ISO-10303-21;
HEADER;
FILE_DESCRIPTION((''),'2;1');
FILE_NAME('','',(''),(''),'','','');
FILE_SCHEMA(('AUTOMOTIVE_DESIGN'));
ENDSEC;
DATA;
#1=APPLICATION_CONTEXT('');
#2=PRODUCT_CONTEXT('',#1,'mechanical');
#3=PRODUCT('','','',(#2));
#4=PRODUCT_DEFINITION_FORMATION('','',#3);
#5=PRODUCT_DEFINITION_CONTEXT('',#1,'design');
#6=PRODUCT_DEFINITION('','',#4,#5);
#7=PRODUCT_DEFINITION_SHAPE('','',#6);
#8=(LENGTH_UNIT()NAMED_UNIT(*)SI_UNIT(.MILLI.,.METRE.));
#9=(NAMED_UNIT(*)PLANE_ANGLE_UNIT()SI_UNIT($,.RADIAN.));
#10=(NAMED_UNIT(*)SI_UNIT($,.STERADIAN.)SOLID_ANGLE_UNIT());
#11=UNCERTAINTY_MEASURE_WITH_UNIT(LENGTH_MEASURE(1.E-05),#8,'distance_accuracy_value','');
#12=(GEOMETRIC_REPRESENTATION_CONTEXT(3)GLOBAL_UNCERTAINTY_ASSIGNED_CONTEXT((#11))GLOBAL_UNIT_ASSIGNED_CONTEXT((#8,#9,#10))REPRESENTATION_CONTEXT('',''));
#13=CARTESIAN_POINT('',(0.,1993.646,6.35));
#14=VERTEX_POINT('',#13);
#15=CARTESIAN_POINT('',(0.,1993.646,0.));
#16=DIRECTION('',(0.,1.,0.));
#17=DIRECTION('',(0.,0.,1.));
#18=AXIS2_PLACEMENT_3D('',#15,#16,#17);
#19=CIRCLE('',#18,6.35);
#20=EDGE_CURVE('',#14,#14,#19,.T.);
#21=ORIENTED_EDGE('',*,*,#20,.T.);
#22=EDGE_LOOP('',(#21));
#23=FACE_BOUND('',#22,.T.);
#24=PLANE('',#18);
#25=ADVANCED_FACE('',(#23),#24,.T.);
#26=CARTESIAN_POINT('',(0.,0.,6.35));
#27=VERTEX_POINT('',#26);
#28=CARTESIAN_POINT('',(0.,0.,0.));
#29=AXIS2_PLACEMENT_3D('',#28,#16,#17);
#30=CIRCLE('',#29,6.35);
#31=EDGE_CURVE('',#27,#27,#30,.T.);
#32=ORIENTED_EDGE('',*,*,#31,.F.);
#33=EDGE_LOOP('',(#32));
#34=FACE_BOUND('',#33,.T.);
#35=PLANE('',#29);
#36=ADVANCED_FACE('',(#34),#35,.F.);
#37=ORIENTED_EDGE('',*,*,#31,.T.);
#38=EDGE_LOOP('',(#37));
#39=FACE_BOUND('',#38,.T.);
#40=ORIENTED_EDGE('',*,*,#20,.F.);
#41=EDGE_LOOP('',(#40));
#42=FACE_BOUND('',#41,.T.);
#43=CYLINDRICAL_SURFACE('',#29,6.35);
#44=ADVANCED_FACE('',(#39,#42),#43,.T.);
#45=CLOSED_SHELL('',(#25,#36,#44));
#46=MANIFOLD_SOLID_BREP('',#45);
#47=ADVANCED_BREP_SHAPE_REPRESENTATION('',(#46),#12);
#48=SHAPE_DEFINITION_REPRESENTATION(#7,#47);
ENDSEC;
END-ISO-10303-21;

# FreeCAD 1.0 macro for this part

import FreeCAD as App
import Part
import Sketcher
from FreeCAD import Vector
Q = App.Units.Quantity

doc = App.newDocument("Part")
body = doc.addObject("PartDesign::Body", "Body")

# Sketch on XZ plane
sketch1 = body.newObject("Sketcher::SketchObject", "Sketch")
sketch1.AttachmentSupport = (doc.getObject("XZ_Plane"), [""])
sketch1.MapMode = "FlatFace"
sketch1.addGeometry(Part.Circle(Vector(0, 0, 0), Vector(0, 0, 1), 6.35), False)
sketch1.addConstraint(Sketcher.Constraint("Coincident", 0, 3, -1, 1))
sketch1.addConstraint(Sketcher.Constraint("Diameter", 0, Q("0.5 in")))

# Sketch on XY plane
sketch2 = body.newObject("Sketcher::SketchObject", "Sketch001")
sketch2.AttachmentSupport = (doc.getObject("XY_Plane"), [""])
sketch2.MapMode = "FlatFace"
sketch2.addGeometry(Part.LineSegment(Vector(0, 0, 0), Vector(0, 1993.646, 0)), False)
sketch2.addConstraint(Sketcher.Constraint("Vertical", 0))
sketch2.addConstraint(Sketcher.Constraint("Coincident", 0, 1, -1, 1))
sketch2.addConstraint(Sketcher.Constraint("DistanceY", 0, 1, 0, 2, Q("78.49 in")))
doc.recompute()

additivepipe = body.newObject("PartDesign::AdditivePipe", "AdditivePipe")
additivepipe.Profile = sketch1
additivepipe.Spine = (sketch2, ["Edge1"])

doc.recompute()
